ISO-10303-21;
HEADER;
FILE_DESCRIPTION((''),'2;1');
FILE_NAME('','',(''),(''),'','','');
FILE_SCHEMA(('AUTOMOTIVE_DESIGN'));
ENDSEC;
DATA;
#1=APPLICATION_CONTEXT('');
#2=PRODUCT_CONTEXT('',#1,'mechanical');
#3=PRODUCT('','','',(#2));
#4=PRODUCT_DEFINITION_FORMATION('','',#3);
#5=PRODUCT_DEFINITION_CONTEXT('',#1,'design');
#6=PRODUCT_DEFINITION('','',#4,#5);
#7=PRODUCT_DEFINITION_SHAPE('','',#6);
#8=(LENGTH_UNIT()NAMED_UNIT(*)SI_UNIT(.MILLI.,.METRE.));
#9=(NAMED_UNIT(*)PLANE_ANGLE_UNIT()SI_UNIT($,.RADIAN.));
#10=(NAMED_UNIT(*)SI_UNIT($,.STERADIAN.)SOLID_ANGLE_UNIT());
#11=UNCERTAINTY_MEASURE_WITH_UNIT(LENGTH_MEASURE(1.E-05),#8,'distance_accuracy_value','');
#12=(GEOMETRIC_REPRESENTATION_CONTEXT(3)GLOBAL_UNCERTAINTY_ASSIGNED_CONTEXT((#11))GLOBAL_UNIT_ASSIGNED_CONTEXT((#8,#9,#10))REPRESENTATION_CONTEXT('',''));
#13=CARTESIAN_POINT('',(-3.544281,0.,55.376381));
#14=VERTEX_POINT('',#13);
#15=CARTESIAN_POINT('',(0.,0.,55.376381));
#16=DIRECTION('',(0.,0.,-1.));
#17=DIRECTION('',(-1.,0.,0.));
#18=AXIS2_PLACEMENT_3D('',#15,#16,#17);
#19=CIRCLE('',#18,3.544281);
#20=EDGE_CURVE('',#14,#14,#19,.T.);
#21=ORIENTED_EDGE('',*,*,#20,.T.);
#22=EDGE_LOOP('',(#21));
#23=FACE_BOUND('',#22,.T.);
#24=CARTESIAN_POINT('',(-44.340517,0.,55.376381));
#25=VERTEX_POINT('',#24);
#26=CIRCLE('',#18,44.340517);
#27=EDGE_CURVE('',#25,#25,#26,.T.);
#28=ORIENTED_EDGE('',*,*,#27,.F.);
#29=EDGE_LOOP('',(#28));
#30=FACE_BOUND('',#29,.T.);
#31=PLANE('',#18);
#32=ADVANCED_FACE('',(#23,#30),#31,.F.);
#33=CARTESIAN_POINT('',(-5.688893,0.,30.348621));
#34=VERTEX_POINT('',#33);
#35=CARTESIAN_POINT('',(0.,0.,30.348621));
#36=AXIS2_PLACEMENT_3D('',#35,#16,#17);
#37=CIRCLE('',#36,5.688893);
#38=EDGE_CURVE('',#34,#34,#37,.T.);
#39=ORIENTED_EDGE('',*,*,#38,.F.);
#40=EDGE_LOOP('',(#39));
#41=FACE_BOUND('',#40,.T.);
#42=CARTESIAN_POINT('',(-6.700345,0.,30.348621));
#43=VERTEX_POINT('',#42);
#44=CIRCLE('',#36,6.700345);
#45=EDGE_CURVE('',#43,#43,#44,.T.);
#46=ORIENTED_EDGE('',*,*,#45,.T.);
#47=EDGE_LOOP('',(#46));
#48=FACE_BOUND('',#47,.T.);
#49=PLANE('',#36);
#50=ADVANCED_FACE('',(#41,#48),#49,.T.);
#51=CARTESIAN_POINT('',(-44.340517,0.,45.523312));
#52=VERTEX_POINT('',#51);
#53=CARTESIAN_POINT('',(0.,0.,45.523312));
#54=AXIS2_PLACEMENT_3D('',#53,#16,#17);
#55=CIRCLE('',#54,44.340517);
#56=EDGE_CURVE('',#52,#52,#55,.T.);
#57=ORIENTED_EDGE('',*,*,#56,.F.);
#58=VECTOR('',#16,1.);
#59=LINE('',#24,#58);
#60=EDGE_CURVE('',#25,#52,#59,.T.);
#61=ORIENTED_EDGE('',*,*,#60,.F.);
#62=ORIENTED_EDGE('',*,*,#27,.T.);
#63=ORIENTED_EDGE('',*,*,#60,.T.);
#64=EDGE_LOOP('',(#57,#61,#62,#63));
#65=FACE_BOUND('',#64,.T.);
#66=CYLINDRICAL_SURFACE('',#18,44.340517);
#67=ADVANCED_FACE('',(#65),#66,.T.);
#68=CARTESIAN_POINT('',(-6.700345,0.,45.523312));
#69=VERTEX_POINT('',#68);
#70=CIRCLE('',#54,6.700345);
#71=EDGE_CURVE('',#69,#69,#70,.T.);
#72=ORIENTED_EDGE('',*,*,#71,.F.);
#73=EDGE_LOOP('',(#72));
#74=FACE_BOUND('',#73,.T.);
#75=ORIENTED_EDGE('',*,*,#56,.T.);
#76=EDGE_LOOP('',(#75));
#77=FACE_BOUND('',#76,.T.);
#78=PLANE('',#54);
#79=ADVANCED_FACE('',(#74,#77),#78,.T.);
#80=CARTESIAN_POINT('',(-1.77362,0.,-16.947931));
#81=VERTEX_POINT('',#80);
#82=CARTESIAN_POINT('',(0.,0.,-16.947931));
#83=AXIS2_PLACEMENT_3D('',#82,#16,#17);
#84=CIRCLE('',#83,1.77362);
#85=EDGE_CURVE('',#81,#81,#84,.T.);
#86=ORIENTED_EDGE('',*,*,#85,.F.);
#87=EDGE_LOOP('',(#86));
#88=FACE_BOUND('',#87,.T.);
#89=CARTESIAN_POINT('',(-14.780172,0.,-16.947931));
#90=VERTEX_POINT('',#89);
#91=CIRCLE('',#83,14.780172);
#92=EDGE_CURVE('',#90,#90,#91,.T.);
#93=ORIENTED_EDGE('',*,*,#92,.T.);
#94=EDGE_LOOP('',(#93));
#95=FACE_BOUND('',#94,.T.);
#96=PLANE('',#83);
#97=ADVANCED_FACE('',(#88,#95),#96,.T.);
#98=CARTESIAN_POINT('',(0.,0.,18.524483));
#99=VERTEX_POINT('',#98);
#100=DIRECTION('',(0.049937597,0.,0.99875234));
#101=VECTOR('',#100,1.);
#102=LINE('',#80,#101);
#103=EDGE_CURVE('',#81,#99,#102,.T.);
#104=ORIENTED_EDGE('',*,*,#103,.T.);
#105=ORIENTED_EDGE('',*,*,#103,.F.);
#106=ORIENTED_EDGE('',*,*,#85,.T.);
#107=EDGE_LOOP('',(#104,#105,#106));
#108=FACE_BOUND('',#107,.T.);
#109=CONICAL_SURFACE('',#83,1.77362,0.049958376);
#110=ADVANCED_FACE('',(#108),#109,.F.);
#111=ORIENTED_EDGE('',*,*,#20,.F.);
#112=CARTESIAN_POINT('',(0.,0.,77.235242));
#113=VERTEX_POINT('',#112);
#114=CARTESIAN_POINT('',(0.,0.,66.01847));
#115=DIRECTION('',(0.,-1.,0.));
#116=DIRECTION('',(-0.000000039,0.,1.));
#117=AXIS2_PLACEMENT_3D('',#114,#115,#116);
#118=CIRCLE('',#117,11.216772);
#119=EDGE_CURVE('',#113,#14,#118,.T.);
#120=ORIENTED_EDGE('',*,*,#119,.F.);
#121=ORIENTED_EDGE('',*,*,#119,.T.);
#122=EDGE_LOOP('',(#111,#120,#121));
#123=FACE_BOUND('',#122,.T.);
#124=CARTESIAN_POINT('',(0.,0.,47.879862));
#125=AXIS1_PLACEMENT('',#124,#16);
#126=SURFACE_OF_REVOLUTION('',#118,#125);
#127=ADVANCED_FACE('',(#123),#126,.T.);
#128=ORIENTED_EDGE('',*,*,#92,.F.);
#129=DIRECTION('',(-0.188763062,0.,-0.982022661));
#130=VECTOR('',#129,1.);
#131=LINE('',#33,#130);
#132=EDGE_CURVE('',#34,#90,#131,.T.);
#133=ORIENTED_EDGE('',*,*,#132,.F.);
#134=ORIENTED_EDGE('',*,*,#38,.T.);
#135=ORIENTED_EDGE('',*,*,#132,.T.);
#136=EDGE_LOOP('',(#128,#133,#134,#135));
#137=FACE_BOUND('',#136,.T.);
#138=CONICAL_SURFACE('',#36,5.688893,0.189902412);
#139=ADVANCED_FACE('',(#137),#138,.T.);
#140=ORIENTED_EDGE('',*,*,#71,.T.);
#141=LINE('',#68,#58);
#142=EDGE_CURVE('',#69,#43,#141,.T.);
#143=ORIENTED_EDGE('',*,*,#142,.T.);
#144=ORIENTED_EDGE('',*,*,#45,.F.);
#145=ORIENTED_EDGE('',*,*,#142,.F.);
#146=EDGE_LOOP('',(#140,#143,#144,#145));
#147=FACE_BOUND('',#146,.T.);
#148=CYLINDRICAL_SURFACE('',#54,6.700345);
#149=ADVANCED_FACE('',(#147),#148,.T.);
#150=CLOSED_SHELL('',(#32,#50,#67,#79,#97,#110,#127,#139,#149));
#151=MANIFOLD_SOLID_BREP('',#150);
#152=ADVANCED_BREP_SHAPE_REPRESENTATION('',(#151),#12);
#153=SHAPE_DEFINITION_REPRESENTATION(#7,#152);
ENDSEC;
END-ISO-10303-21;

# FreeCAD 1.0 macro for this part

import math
import FreeCAD as App
import Part
import Sketcher
from FreeCAD import Vector

doc = App.newDocument("Part")
body = doc.addObject("PartDesign::Body", "Body")

sketch1 = doc.addObject("Sketcher::SketchObject", "Sketch")
body.addObject(sketch1)
sketch1.AttachmentSupport = (doc.XZ_Plane, [""])
sketch1.MapMode = "FlatFace"
sketch1.addGeometry(Part.ArcOfCircle(Part.Circle(Vector(0, 66, 0), Vector(0, 0, 1), 11.2), math.radians(90), math.radians(252)), False)
sketch1.addGeometry(Part.LineSegment(Vector(-3.5, 55.4, 0), Vector(-44.3, 55.4, 0)), False)
sketch1.addGeometry(Part.LineSegment(Vector(-44.3, 55.4, 0), Vector(-44.3, 45.5, 0)), False)
sketch1.addGeometry(Part.LineSegment(Vector(-44.3, 45.5, 0), Vector(-6.7, 45.5, 0)), False)
sketch1.addGeometry(Part.LineSegment(Vector(-6.7, 45.5, 0), Vector(-6.7, 30.3, 0)), False)
sketch1.addGeometry(Part.LineSegment(Vector(-6.7, 30.3, 0), Vector(-5.7, 30.3, 0)), False)
sketch1.addGeometry(Part.LineSegment(Vector(-5.7, 30.3, 0), Vector(-14.8, -16.9, 0)), False)
sketch1.addGeometry(Part.LineSegment(Vector(-14.8, -16.9, 0), Vector(-1.8, -16.9, 0)), False)
sketch1.addGeometry(Part.LineSegment(Vector(-1.8, -16.9, 0), Vector(0, 18.5, 0)), False)
sketch1.addGeometry(Part.LineSegment(Vector(0, 18.5, 0), Vector(0, 77.2, 0)), False)
sketch1.addConstraint(Sketcher.Constraint("Coincident", 0, 2, 1, 1))
sketch1.addConstraint(Sketcher.Constraint("Coincident", 1, 2, 2, 1))
sketch1.addConstraint(Sketcher.Constraint("Coincident", 2, 2, 3, 1))
sketch1.addConstraint(Sketcher.Constraint("Coincident", 3, 2, 4, 1))
sketch1.addConstraint(Sketcher.Constraint("Coincident", 4, 2, 5, 1))
sketch1.addConstraint(Sketcher.Constraint("Coincident", 5, 2, 6, 1))
sketch1.addConstraint(Sketcher.Constraint("Coincident", 6, 2, 7, 1))
sketch1.addConstraint(Sketcher.Constraint("Coincident", 7, 2, 8, 1))
sketch1.addConstraint(Sketcher.Constraint("Coincident", 8, 2, 9, 1))
sketch1.addConstraint(Sketcher.Constraint("Coincident", 9, 2, 0, 1))
sketch1.addConstraint(Sketcher.Constraint("Horizontal", 1))
sketch1.addConstraint(Sketcher.Constraint("Vertical", 2))
sketch1.addConstraint(Sketcher.Constraint("Horizontal", 3))
sketch1.addConstraint(Sketcher.Constraint("Vertical", 4))
sketch1.addConstraint(Sketcher.Constraint("Horizontal", 5))
sketch1.addConstraint(Sketcher.Constraint("Horizontal", 7))
sketch1.addConstraint(Sketcher.Constraint("Vertical", 9))
sketch1.addConstraint(Sketcher.Constraint("PointOnObject", 0, 3, -2))
sketch1.addConstraint(Sketcher.Constraint("PointOnObject", 8, 2, -2))
sketch1.addConstraint(Sketcher.Constraint("Radius", 0, 11.216772))
sketch1.addConstraint(Sketcher.Constraint("DistanceY", 2, 2, 2, 1, 9.853069))
sketch1.addConstraint(Sketcher.Constraint("DistanceY", 4, 2, 4, 1, 15.174691))
sketch1.addConstraint(Sketcher.Constraint("DistanceY", 9, 1, 9, 2, 58.710759))
sketch1.addConstraint(Sketcher.Constraint("DistanceY", 8, 2, 0, 2, 36.851898))
sketch1.addConstraint(Sketcher.Constraint("DistanceX", 1, 2, 1, 1, 40.796236))
sketch1.addConstraint(Sketcher.Constraint("DistanceX", 3, 1, 3, 2, 37.640172))
sketch1.addConstraint(Sketcher.Constraint("DistanceX", 5, 1, 5, 2, 1.011452))
sketch1.addConstraint(Sketcher.Constraint("DistanceX", 7, 1, 7, 2, 13.006552))
sketch1.addConstraint(Sketcher.Constraint("DistanceY", -1, 1, 0, 3, 66.01847))
sketch1.addConstraint(Sketcher.Constraint("DistanceY", 6, 2, -1, 1, 16.947931))
sketch1.addConstraint(Sketcher.Constraint("DistanceX", 7, 2, -1, 1, 1.77362))
revolution = doc.addObject("PartDesign::Revolution", "Revolution")
body.addObject(revolution)
revolution.Profile = sketch1
revolution.ReferenceAxis = (sketch1, ["V_Axis"])
revolution.Angle = 360

doc.recompute()
